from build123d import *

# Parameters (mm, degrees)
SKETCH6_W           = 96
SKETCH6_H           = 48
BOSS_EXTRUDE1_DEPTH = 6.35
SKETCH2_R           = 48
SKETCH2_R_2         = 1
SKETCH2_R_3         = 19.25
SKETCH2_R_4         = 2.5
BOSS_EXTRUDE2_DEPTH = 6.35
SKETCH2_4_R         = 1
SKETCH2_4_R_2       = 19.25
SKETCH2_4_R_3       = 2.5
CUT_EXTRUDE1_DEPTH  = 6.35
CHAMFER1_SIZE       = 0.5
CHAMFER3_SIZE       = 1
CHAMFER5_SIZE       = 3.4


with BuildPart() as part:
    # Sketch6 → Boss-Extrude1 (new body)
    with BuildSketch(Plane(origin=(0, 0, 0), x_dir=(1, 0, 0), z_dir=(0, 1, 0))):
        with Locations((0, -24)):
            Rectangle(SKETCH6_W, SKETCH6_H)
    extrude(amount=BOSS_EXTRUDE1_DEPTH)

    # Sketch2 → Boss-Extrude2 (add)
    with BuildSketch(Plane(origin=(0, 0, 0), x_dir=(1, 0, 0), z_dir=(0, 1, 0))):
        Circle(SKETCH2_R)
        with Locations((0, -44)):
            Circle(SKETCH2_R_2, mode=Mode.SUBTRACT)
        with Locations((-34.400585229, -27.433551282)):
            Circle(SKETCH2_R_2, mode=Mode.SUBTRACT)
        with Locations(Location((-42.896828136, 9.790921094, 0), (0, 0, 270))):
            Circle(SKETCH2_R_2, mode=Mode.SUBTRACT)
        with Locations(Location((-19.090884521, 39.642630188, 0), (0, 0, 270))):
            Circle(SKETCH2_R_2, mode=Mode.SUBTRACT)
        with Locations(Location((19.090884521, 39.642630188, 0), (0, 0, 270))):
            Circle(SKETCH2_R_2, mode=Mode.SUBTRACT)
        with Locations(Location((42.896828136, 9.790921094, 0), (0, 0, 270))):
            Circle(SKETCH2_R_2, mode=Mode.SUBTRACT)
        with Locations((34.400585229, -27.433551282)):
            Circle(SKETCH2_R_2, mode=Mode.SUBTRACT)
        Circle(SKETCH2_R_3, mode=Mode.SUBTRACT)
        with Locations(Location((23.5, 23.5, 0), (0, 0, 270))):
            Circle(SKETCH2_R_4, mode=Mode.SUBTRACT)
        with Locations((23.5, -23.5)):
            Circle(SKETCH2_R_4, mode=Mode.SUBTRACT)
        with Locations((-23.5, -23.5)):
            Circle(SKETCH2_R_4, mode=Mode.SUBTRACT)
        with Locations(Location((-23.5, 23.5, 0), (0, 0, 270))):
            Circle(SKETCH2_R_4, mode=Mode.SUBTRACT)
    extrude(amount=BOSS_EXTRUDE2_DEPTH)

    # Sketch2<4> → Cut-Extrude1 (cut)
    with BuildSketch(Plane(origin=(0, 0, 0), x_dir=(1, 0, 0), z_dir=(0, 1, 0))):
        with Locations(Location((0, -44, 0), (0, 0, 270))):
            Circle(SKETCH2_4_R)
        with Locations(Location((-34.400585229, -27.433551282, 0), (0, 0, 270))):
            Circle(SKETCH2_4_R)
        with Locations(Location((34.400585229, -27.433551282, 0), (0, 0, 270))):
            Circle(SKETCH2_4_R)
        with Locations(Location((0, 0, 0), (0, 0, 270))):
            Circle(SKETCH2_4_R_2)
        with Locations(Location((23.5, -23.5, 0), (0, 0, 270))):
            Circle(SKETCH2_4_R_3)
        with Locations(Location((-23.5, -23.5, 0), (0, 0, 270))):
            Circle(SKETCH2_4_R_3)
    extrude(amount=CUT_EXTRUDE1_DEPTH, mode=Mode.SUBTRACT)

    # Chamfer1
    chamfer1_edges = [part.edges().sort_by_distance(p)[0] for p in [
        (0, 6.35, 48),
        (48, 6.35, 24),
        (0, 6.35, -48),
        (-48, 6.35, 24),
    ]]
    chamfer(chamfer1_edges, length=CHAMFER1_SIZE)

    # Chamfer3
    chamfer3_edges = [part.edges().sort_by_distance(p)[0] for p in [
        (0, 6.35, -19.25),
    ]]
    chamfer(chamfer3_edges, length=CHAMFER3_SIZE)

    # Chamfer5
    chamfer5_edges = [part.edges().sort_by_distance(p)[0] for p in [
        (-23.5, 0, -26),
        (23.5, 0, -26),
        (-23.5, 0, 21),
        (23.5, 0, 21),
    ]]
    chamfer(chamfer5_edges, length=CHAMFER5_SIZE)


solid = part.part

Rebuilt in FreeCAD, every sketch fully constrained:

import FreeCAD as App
import Part
import Sketcher
from FreeCAD import Vector
Q = App.Units.Quantity


def edges_at(feature, points):
    """Names of the edges that pass closest to the given points."""
    edges = feature.Shape.Edges
    near = lambda p: min(range(len(edges)), key=lambda i: edges[i].distToShape(Part.Vertex(*p))[0])
    return sorted({f"Edge{near(p) + 1}" for p in points})


def add_polygon(sketch, points):
    """Adds a closed chain of lines whose ends are joined by coincident constraints."""
    first, n = sketch.GeometryCount, len(points)
    for a, b in zip(points, points[1:] + points[:1]):
        sketch.addGeometry(Part.LineSegment(App.Vector(*a, 0), App.Vector(*b, 0)), False)
    for i in range(n):
        sketch.addConstraint(Sketcher.Constraint("Coincident", first + i, 2, first + (i + 1) % n, 1))

doc = App.newDocument("Part")
params = doc.addObject("Spreadsheet::Sheet", "Params")
for row, (alias, value) in enumerate([
    ("sketch1_width", "96 mm"),
    ("sketch1_height", "48 mm"),
    ("pad1_length", "6.35 mm"),
    ("sketch2_diameter", "96 mm"),
    ("sketch2_diameter2", "2 mm"),
    ("sketch2_diameter3", "5 mm"),
    ("sketch2_diameter4", "38.5 mm"),
    ("pad2_length", "6.35 mm"),
    ("sketch3_diameter", "2 mm"),
    ("sketch3_diameter2", "5 mm"),
    ("sketch3_diameter3", "38.5 mm"),
    ("pocket1_length", "6.35 mm"),
    ("chamfer_size", "0.5 mm"),
    ("chamfer2_size", "1 mm"),
    ("chamfer3_size", "3.4 mm"),
], start=1):
    params.set(f"A{row}", alias)
    params.set(f"B{row}", "=" + value)
    params.setAlias(f"B{row}", alias)

body = doc.addObject("PartDesign::Body", "Body")

# Sketch on XZ plane
sketch1 = body.newObject("Sketcher::SketchObject", "Sketch")
sketch1.AttachmentSupport = (doc.getObject("XZ_Plane"), [""])
sketch1.MapMode = "FlatFace"
add_polygon(sketch1, [(-48, 0), (-48, 48), (48, 48), (48, 0)])  # lines 0-3
sketch1.addConstraint([
    Sketcher.Constraint("Vertical", 0),
    Sketcher.Constraint("Horizontal", 1),
    Sketcher.Constraint("Vertical", 2),
    Sketcher.Constraint("Horizontal", 3),
    Sketcher.Constraint("Symmetric", 2, 2, 3, 2, -1, 1),
    Sketcher.Constraint("DistanceX", 1, 1, 1, 2, Q("96 mm")),
    Sketcher.Constraint("DistanceY", 0, 1, 0, 2, Q("48 mm")),
])
sketch1.setExpression("Constraints[9]", "Params.sketch1_width")
sketch1.setExpression("Constraints[10]", "Params.sketch1_height")
pad1 = body.newObject("PartDesign::Pad", "Pad")
pad1.Profile = sketch1
pad1.setExpression("Length", "Params.pad1_length")
pad1.Reversed = True

# Sketch on XZ plane
sketch2 = body.newObject("Sketcher::SketchObject", "Sketch001")
sketch2.AttachmentSupport = (doc.getObject("XZ_Plane"), [""])
sketch2.MapMode = "FlatFace"
sketch2.addGeometry([
    Part.Circle(Vector(0, 0, 0), Vector(0, 0, 1), 48),  # 0
    Part.Circle(Vector(-34.4, 27.4, 0), Vector(0, 0, 1), 1),  # 1
    Part.Circle(Vector(-23.5, 23.5, 0), Vector(0, 0, 1), 2.5),  # 2
    Part.Circle(Vector(0, 44, 0), Vector(0, 0, 1), 1),  # 3
    Part.Circle(Vector(34.4, 27.4, 0), Vector(0, 0, 1), 1),  # 4
    Part.Circle(Vector(23.5, 23.5, 0), Vector(0, 0, 1), 2.5),  # 5
    Part.Circle(Vector(-42.9, -9.8, 0), Vector(0, 0, 1), 1),  # 6
    Part.Circle(Vector(-23.5, -23.5, 0), Vector(0, 0, 1), 2.5),  # 7
    Part.Circle(Vector(-19.1, -39.6, 0), Vector(0, 0, 1), 1),  # 8
    Part.Circle(Vector(0, 0, 0), Vector(0, 0, 1), 19.2),  # 9
    Part.Circle(Vector(42.9, -9.8, 0), Vector(0, 0, 1), 1),  # 10
    Part.Circle(Vector(19.1, -39.6, 0), Vector(0, 0, 1), 1),  # 11
    Part.Circle(Vector(23.5, -23.5, 0), Vector(0, 0, 1), 2.5),  # 12
], False)
sketch2.addConstraint([
    Sketcher.Constraint("Coincident", 0, 3, -1, 1),
    Sketcher.Constraint("Coincident", 9, 3, -1, 1),
    Sketcher.Constraint("Equal", 1, 3),
    Sketcher.Constraint("Equal", 3, 4),
    Sketcher.Constraint("Equal", 2, 5),
    Sketcher.Constraint("Equal", 4, 6),
    Sketcher.Constraint("Equal", 5, 7),
    Sketcher.Constraint("Equal", 6, 8),
    Sketcher.Constraint("Equal", 8, 10),
    Sketcher.Constraint("Equal", 10, 11),
    Sketcher.Constraint("Equal", 7, 12),
    Sketcher.Constraint("Symmetric", 5, 3, 7, 3, -1, 1),
    Sketcher.Constraint("Symmetric", 2, 3, 12, 3, -1, 1),
    Sketcher.Constraint("Symmetric", 1, 3, 4, 3, -2),
    Sketcher.Constraint("Symmetric", 2, 3, 5, 3, -2),
    Sketcher.Constraint("Symmetric", 6, 3, 10, 3, -2),
    Sketcher.Constraint("Symmetric", 8, 3, 11, 3, -2),
    Sketcher.Constraint("PointOnObject", 3, 3, -2),
    Sketcher.Constraint("Diameter", 0, Q("96 mm")),
    Sketcher.Constraint("Diameter", 1, Q("2 mm")),
    Sketcher.Constraint("Diameter", 2, Q("5 mm")),
    Sketcher.Constraint("Diameter", 9, Q("38.5 mm")),
    Sketcher.Constraint("DistanceY", -1, 1, 3, 3, Q("44 mm")),
    Sketcher.Constraint("DistanceX", 2, 3, 5, 3, Q("47 mm")),
    Sketcher.Constraint("DistanceY", 7, 3, 2, 3, Q("47 mm")),
    Sketcher.Constraint("DistanceX", 1, 3, 8, 3, Q("15.309701 mm")),
    Sketcher.Constraint("DistanceY", -1, 1, 1, 3, Q("27.433551 mm")),
    Sketcher.Constraint("DistanceX", 6, 3, -1, 1, Q("42.896828 mm")),
    Sketcher.Constraint("DistanceY", 6, 3, -1, 1, Q("9.790921 mm")),
    Sketcher.Constraint("DistanceY", 8, 3, -1, 1, Q("39.64263 mm")),
    Sketcher.Constraint("DistanceX", 1, 3, 4, 3, Q("68.80117 mm")),
])
sketch2.setExpression("Constraints[18]", "Params.sketch2_diameter")
sketch2.setExpression("Constraints[19]", "Params.sketch2_diameter2")
sketch2.setExpression("Constraints[20]", "Params.sketch2_diameter3")
sketch2.setExpression("Constraints[21]", "Params.sketch2_diameter4")
pad2 = body.newObject("PartDesign::Pad", "Pad001")
pad2.Profile = sketch2
pad2.setExpression("Length", "Params.pad2_length")
pad2.Reversed = True

# Sketch on XZ plane
sketch3 = body.newObject("Sketcher::SketchObject", "Sketch002")
sketch3.AttachmentSupport = (doc.getObject("XZ_Plane"), [""])
sketch3.MapMode = "FlatFace"
sketch3.addGeometry([
    Part.Circle(Vector(0, 44, 0), Vector(0, 0, 1), 1),  # 0
    Part.Circle(Vector(-34.4, 27.4, 0), Vector(0, 0, 1), 1),  # 1
    Part.Circle(Vector(34.4, 27.4, 0), Vector(0, 0, 1), 1),  # 2
    Part.Circle(Vector(0, 0, 0), Vector(0, 0, 1), 19.2),  # 3
    Part.Circle(Vector(23.5, 23.5, 0), Vector(0, 0, 1), 2.5),  # 4
    Part.Circle(Vector(-23.5, 23.5, 0), Vector(0, 0, 1), 2.5),  # 5
], False)
sketch3.addConstraint([
    Sketcher.Constraint("Coincident", 3, 3, -1, 1),
    Sketcher.Constraint("Equal", 0, 1),
    Sketcher.Constraint("Equal", 1, 2),
    Sketcher.Constraint("Equal", 4, 5),
    Sketcher.Constraint("Symmetric", 1, 3, 2, 3, -2),
    Sketcher.Constraint("Symmetric", 4, 3, 5, 3, -2),
    Sketcher.Constraint("PointOnObject", 0, 3, -2),
    Sketcher.Constraint("Diameter", 0, Q("2 mm")),
    Sketcher.Constraint("Diameter", 4, Q("5 mm")),
    Sketcher.Constraint("Diameter", 3, Q("38.5 mm")),
    Sketcher.Constraint("DistanceY", -1, 1, 0, 3, Q("44 mm")),
    Sketcher.Constraint("DistanceX", 5, 3, 4, 3, Q("47 mm")),
    Sketcher.Constraint("DistanceY", -1, 1, 4, 3, Q("23.5 mm")),
    Sketcher.Constraint("DistanceY", -1, 1, 1, 3, Q("27.433551 mm")),
    Sketcher.Constraint("DistanceX", 1, 3, 2, 3, Q("68.80117 mm")),
])
sketch3.setExpression("Constraints[7]", "Params.sketch3_diameter")
sketch3.setExpression("Constraints[8]", "Params.sketch3_diameter2")
sketch3.setExpression("Constraints[9]", "Params.sketch3_diameter3")
pocket1 = body.newObject("PartDesign::Pocket", "Pocket")
pocket1.Profile = sketch3
pocket1.setExpression("Length", "Params.pocket1_length")
doc.recompute()

chamfer = body.newObject("PartDesign::Chamfer", "Chamfer")
chamfer.Base = (pocket1, edges_at(pocket1, [
    (0, 6.35, 48),
    (48, 6.35, 24),
    (0, 6.35, -48),
    (-48, 6.35, 24),
]))
chamfer.setExpression("Size", "Params.chamfer_size")
doc.recompute()

chamfer2 = body.newObject("PartDesign::Chamfer", "Chamfer001")
chamfer2.Base = (chamfer, edges_at(chamfer, [(0, 6.35, -19.25)]))
chamfer2.setExpression("Size", "Params.chamfer2_size")
doc.recompute()

chamfer3 = body.newObject("PartDesign::Chamfer", "Chamfer002")
chamfer3.Base = (chamfer2, edges_at(chamfer2, [
    (-23.5, 0, -26),
    (23.5, 0, -26),
    (-23.5, 0, 21),
    (23.5, 0, 21),
]))
chamfer3.setExpression("Size", "Params.chamfer3_size")

doc.recompute()
